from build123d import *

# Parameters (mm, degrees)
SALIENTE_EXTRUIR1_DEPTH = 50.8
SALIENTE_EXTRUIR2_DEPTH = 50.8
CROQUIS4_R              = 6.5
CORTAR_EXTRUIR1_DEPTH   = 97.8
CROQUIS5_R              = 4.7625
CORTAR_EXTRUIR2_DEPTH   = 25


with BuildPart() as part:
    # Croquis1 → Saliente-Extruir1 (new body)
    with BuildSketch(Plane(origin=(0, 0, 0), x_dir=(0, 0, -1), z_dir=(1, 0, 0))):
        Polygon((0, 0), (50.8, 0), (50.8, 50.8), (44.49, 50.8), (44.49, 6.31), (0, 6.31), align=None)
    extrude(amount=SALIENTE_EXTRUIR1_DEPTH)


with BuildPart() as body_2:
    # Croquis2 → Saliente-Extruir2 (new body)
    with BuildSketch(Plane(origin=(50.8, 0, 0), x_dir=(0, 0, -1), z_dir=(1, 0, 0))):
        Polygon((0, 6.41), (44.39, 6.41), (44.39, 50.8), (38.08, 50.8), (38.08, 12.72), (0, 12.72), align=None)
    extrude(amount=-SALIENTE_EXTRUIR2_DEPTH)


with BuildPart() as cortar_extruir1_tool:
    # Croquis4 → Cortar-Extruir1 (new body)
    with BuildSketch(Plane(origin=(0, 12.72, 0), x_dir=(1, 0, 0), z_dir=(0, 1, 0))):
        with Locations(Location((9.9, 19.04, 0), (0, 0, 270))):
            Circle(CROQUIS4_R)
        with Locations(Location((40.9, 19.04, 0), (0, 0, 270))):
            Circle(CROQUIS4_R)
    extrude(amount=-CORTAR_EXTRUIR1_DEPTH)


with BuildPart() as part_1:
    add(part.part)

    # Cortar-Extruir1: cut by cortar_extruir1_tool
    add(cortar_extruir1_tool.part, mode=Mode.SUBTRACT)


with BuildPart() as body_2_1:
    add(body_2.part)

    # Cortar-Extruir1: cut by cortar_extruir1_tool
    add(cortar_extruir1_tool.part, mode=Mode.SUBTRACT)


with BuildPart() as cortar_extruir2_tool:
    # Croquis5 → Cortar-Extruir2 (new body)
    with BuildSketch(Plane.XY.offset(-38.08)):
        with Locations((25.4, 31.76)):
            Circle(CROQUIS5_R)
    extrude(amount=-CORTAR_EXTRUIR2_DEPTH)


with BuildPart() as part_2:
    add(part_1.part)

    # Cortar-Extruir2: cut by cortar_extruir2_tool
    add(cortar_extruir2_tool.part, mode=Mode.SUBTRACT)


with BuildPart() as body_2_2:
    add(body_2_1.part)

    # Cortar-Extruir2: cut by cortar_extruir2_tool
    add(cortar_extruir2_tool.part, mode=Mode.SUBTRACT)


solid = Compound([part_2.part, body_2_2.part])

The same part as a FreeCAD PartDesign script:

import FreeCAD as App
import Part
import Sketcher

V = App.Vector

doc = App.newDocument("Part")
params = doc.addObject("Spreadsheet::Sheet", "Params")
for row, (alias, value) in enumerate([
    ("sketch1_width", "50.8 mm"),
    ("sketch1_width2", "44.49 mm"),
    ("pad1_length", "50.8 mm"),
    ("sketch2_width", "44.39 mm"),
    ("sketch2_width2", "38.08 mm"),
    ("pad2_length", "50.8 mm"),
    ("sketch3_diameter", "13 mm"),
    ("pad3_length", "97.8 mm"),
    ("pad4_length", "25 mm"),
], start=1):
    params.set(f"A{row}", alias)
    params.set(f"B{row}", "=" + value)
    params.setAlias(f"B{row}", alias)

body = doc.addObject("PartDesign::Body", "Body")

# Sketch on YZ plane
sketch1 = body.newObject("Sketcher::SketchObject", "Sketch")
sketch1.AttachmentSupport = (doc.getObject("YZ_Plane"), [""])
sketch1.MapMode = "FlatFace"
sketch1.addGeometry(Part.LineSegment(V(0, 0, 0), V(0, -51, 0)), False)
sketch1.addGeometry(Part.LineSegment(V(0, -51, 0), V(51, -51, 0)), False)
sketch1.addGeometry(Part.LineSegment(V(51, -51, 0), V(51, -44, 0)), False)
sketch1.addGeometry(Part.LineSegment(V(51, -44, 0), V(6, -44, 0)), False)
sketch1.addGeometry(Part.LineSegment(V(6, -44, 0), V(6, 0, 0)), False)
sketch1.addGeometry(Part.LineSegment(V(6, 0, 0), V(0, 0, 0)), False)
sketch1.addConstraint(Sketcher.Constraint("Coincident", 0, 2, 1, 1))
sketch1.addConstraint(Sketcher.Constraint("Coincident", 1, 2, 2, 1))
sketch1.addConstraint(Sketcher.Constraint("Coincident", 2, 2, 3, 1))
sketch1.addConstraint(Sketcher.Constraint("Coincident", 3, 2, 4, 1))
sketch1.addConstraint(Sketcher.Constraint("Coincident", 4, 2, 5, 1))
sketch1.addConstraint(Sketcher.Constraint("Coincident", 5, 2, 0, 1))
sketch1.addConstraint(Sketcher.Constraint("Vertical", 0))
sketch1.addConstraint(Sketcher.Constraint("Horizontal", 1))
sketch1.addConstraint(Sketcher.Constraint("Vertical", 2))
sketch1.addConstraint(Sketcher.Constraint("Horizontal", 3))
sketch1.addConstraint(Sketcher.Constraint("Vertical", 4))
sketch1.addConstraint(Sketcher.Constraint("Horizontal", 5))
sketch1.addConstraint(Sketcher.Constraint("Coincident", 5, 2, -1, 1))
sketch1.addConstraint(Sketcher.Constraint("Equal", 1, 0))
sketch1.addConstraint(Sketcher.Constraint("Equal", 5, 2))
sketch1.addConstraint(Sketcher.Constraint("DistanceX", 1, 1, 1, 2, 50.8))
sketch1.addConstraint(Sketcher.Constraint("DistanceX", 3, 2, 3, 1, 44.49))
sketch1.setExpression("Constraints[15]", "Params.sketch1_width")
sketch1.setExpression("Constraints[16]", "Params.sketch1_width2")
pad1 = body.newObject("PartDesign::Pad", "Pad")
pad1.Profile = sketch1
pad1.setExpression("Length", "Params.pad1_length")
body2 = doc.addObject("PartDesign::Body", "Body001")

# Sketch on YZ plane
sketch2 = body2.newObject("Sketcher::SketchObject", "Sketch001")
sketch2.AttachmentSupport = (doc.getObject("YZ_Plane001"), [""])
sketch2.MapMode = "FlatFace"
sketch2.AttachmentOffset = App.Placement(V(0, 0, 50.8), App.Rotation())
sketch2.addGeometry(Part.LineSegment(V(6, 0, 0), V(6, -44, 0)), False)
sketch2.addGeometry(Part.LineSegment(V(6, -44, 0), V(51, -44, 0)), False)
sketch2.addGeometry(Part.LineSegment(V(51, -44, 0), V(51, -38, 0)), False)
sketch2.addGeometry(Part.LineSegment(V(51, -38, 0), V(13, -38, 0)), False)
sketch2.addGeometry(Part.LineSegment(V(13, -38, 0), V(13, 0, 0)), False)
sketch2.addGeometry(Part.LineSegment(V(13, 0, 0), V(6, 0, 0)), False)
sketch2.addConstraint(Sketcher.Constraint("Coincident", 0, 2, 1, 1))
sketch2.addConstraint(Sketcher.Constraint("Coincident", 1, 2, 2, 1))
sketch2.addConstraint(Sketcher.Constraint("Coincident", 2, 2, 3, 1))
sketch2.addConstraint(Sketcher.Constraint("Coincident", 3, 2, 4, 1))
sketch2.addConstraint(Sketcher.Constraint("Coincident", 4, 2, 5, 1))
sketch2.addConstraint(Sketcher.Constraint("Coincident", 5, 2, 0, 1))
sketch2.addConstraint(Sketcher.Constraint("Vertical", 0))
sketch2.addConstraint(Sketcher.Constraint("Horizontal", 1))
sketch2.addConstraint(Sketcher.Constraint("Vertical", 2))
sketch2.addConstraint(Sketcher.Constraint("Horizontal", 3))
sketch2.addConstraint(Sketcher.Constraint("Vertical", 4))
sketch2.addConstraint(Sketcher.Constraint("Horizontal", 5))
sketch2.addConstraint(Sketcher.Constraint("PointOnObject", 4, 2, -1))
sketch2.addConstraint(Sketcher.Constraint("Equal", 1, 0))
sketch2.addConstraint(Sketcher.Constraint("Equal", 5, 2))
sketch2.addConstraint(Sketcher.Constraint("DistanceX", 1, 1, 1, 2, 44.39))
sketch2.addConstraint(Sketcher.Constraint("DistanceX", 3, 2, 3, 1, 38.08))
sketch2.addConstraint(Sketcher.Constraint("DistanceX", -1, 1, 1, 2, 50.8))
sketch2.setExpression("Constraints[15]", "Params.sketch2_width")
sketch2.setExpression("Constraints[16]", "Params.sketch2_width2")
pad2 = body2.newObject("PartDesign::Pad", "Pad001")
pad2.Profile = sketch2
pad2.setExpression("Length", "Params.pad2_length")
pad2.Reversed = True
body3 = doc.addObject("PartDesign::Body", "Body002")
body3.AllowCompound = True

# Sketch on XZ plane
sketch3 = body3.newObject("Sketcher::SketchObject", "Sketch002")
sketch3.AttachmentSupport = (doc.getObject("XZ_Plane002"), [""])
sketch3.MapMode = "FlatFace"
sketch3.AttachmentOffset = App.Placement(V(0, 0, -12.72), App.Rotation())
sketch3.addGeometry(Part.Circle(V(10, -19, 0), V(0, 0, 1), 6), False)
sketch3.addGeometry(Part.Circle(V(41, -19, 0), V(0, 0, 1), 6), False)
sketch3.addConstraint(Sketcher.Constraint("Equal", 0, 1))
sketch3.addConstraint(Sketcher.Constraint("Horizontal", 0, 3, 1, 3))
sketch3.addConstraint(Sketcher.Constraint("Diameter", 0, 13.0))
sketch3.addConstraint(Sketcher.Constraint("DistanceX", 0, 3, 1, 3, 31.0))
sketch3.addConstraint(Sketcher.Constraint("DistanceX", -1, 1, 0, 3, 9.9))
sketch3.addConstraint(Sketcher.Constraint("DistanceY", 0, 3, -1, 1, 19.04))
sketch3.setExpression("Constraints[2]", "Params.sketch3_diameter")
pad3 = body3.newObject("PartDesign::Pad", "Pad002")
pad3.Profile = sketch3
pad3.setExpression("Length", "Params.pad3_length")
doc.recompute()

body4 = doc.addObject("PartDesign::Body", "Body003")
body4.BaseFeature = body3
boolean = body.newObject("PartDesign::Boolean", "Boolean")
boolean.Type = "Cut"
boolean.addObjects([body4])
doc.recompute()

boolean2 = body2.newObject("PartDesign::Boolean", "Boolean001")
boolean2.Type = "Cut"
boolean2.addObjects([body3])
body5 = doc.addObject("PartDesign::Body", "Body004")

# Sketch on XY plane
sketch4 = body5.newObject("Sketcher::SketchObject", "Sketch003")
sketch4.AttachmentSupport = (doc.getObject("XY_Plane004"), [""])
sketch4.MapMode = "FlatFace"
sketch4.AttachmentOffset = App.Placement(V(0, 0, -38.08), App.Rotation())
sketch4.addGeometry(Part.Circle(V(25.4, 31.8, 0), V(0, 0, 1), 4.8), False)
sketch4.addConstraint(Sketcher.Constraint("Diameter", 0, 9.525))
sketch4.addConstraint(Sketcher.Constraint("DistanceX", -1, 1, 0, 3, 25.4))
sketch4.addConstraint(Sketcher.Constraint("DistanceY", -1, 1, 0, 3, 31.76))
pad4 = body5.newObject("PartDesign::Pad", "Pad003")
pad4.Profile = sketch4
pad4.setExpression("Length", "Params.pad4_length")
pad4.Reversed = True
doc.recompute()

body6 = doc.addObject("PartDesign::Body", "Body005")
body6.BaseFeature = body5
boolean3 = body.newObject("PartDesign::Boolean", "Boolean002")
boolean3.Type = "Cut"
boolean3.addObjects([body6])
doc.recompute()

boolean4 = body2.newObject("PartDesign::Boolean", "Boolean003")
boolean4.Type = "Cut"
boolean4.addObjects([body5])

doc.recompute()
